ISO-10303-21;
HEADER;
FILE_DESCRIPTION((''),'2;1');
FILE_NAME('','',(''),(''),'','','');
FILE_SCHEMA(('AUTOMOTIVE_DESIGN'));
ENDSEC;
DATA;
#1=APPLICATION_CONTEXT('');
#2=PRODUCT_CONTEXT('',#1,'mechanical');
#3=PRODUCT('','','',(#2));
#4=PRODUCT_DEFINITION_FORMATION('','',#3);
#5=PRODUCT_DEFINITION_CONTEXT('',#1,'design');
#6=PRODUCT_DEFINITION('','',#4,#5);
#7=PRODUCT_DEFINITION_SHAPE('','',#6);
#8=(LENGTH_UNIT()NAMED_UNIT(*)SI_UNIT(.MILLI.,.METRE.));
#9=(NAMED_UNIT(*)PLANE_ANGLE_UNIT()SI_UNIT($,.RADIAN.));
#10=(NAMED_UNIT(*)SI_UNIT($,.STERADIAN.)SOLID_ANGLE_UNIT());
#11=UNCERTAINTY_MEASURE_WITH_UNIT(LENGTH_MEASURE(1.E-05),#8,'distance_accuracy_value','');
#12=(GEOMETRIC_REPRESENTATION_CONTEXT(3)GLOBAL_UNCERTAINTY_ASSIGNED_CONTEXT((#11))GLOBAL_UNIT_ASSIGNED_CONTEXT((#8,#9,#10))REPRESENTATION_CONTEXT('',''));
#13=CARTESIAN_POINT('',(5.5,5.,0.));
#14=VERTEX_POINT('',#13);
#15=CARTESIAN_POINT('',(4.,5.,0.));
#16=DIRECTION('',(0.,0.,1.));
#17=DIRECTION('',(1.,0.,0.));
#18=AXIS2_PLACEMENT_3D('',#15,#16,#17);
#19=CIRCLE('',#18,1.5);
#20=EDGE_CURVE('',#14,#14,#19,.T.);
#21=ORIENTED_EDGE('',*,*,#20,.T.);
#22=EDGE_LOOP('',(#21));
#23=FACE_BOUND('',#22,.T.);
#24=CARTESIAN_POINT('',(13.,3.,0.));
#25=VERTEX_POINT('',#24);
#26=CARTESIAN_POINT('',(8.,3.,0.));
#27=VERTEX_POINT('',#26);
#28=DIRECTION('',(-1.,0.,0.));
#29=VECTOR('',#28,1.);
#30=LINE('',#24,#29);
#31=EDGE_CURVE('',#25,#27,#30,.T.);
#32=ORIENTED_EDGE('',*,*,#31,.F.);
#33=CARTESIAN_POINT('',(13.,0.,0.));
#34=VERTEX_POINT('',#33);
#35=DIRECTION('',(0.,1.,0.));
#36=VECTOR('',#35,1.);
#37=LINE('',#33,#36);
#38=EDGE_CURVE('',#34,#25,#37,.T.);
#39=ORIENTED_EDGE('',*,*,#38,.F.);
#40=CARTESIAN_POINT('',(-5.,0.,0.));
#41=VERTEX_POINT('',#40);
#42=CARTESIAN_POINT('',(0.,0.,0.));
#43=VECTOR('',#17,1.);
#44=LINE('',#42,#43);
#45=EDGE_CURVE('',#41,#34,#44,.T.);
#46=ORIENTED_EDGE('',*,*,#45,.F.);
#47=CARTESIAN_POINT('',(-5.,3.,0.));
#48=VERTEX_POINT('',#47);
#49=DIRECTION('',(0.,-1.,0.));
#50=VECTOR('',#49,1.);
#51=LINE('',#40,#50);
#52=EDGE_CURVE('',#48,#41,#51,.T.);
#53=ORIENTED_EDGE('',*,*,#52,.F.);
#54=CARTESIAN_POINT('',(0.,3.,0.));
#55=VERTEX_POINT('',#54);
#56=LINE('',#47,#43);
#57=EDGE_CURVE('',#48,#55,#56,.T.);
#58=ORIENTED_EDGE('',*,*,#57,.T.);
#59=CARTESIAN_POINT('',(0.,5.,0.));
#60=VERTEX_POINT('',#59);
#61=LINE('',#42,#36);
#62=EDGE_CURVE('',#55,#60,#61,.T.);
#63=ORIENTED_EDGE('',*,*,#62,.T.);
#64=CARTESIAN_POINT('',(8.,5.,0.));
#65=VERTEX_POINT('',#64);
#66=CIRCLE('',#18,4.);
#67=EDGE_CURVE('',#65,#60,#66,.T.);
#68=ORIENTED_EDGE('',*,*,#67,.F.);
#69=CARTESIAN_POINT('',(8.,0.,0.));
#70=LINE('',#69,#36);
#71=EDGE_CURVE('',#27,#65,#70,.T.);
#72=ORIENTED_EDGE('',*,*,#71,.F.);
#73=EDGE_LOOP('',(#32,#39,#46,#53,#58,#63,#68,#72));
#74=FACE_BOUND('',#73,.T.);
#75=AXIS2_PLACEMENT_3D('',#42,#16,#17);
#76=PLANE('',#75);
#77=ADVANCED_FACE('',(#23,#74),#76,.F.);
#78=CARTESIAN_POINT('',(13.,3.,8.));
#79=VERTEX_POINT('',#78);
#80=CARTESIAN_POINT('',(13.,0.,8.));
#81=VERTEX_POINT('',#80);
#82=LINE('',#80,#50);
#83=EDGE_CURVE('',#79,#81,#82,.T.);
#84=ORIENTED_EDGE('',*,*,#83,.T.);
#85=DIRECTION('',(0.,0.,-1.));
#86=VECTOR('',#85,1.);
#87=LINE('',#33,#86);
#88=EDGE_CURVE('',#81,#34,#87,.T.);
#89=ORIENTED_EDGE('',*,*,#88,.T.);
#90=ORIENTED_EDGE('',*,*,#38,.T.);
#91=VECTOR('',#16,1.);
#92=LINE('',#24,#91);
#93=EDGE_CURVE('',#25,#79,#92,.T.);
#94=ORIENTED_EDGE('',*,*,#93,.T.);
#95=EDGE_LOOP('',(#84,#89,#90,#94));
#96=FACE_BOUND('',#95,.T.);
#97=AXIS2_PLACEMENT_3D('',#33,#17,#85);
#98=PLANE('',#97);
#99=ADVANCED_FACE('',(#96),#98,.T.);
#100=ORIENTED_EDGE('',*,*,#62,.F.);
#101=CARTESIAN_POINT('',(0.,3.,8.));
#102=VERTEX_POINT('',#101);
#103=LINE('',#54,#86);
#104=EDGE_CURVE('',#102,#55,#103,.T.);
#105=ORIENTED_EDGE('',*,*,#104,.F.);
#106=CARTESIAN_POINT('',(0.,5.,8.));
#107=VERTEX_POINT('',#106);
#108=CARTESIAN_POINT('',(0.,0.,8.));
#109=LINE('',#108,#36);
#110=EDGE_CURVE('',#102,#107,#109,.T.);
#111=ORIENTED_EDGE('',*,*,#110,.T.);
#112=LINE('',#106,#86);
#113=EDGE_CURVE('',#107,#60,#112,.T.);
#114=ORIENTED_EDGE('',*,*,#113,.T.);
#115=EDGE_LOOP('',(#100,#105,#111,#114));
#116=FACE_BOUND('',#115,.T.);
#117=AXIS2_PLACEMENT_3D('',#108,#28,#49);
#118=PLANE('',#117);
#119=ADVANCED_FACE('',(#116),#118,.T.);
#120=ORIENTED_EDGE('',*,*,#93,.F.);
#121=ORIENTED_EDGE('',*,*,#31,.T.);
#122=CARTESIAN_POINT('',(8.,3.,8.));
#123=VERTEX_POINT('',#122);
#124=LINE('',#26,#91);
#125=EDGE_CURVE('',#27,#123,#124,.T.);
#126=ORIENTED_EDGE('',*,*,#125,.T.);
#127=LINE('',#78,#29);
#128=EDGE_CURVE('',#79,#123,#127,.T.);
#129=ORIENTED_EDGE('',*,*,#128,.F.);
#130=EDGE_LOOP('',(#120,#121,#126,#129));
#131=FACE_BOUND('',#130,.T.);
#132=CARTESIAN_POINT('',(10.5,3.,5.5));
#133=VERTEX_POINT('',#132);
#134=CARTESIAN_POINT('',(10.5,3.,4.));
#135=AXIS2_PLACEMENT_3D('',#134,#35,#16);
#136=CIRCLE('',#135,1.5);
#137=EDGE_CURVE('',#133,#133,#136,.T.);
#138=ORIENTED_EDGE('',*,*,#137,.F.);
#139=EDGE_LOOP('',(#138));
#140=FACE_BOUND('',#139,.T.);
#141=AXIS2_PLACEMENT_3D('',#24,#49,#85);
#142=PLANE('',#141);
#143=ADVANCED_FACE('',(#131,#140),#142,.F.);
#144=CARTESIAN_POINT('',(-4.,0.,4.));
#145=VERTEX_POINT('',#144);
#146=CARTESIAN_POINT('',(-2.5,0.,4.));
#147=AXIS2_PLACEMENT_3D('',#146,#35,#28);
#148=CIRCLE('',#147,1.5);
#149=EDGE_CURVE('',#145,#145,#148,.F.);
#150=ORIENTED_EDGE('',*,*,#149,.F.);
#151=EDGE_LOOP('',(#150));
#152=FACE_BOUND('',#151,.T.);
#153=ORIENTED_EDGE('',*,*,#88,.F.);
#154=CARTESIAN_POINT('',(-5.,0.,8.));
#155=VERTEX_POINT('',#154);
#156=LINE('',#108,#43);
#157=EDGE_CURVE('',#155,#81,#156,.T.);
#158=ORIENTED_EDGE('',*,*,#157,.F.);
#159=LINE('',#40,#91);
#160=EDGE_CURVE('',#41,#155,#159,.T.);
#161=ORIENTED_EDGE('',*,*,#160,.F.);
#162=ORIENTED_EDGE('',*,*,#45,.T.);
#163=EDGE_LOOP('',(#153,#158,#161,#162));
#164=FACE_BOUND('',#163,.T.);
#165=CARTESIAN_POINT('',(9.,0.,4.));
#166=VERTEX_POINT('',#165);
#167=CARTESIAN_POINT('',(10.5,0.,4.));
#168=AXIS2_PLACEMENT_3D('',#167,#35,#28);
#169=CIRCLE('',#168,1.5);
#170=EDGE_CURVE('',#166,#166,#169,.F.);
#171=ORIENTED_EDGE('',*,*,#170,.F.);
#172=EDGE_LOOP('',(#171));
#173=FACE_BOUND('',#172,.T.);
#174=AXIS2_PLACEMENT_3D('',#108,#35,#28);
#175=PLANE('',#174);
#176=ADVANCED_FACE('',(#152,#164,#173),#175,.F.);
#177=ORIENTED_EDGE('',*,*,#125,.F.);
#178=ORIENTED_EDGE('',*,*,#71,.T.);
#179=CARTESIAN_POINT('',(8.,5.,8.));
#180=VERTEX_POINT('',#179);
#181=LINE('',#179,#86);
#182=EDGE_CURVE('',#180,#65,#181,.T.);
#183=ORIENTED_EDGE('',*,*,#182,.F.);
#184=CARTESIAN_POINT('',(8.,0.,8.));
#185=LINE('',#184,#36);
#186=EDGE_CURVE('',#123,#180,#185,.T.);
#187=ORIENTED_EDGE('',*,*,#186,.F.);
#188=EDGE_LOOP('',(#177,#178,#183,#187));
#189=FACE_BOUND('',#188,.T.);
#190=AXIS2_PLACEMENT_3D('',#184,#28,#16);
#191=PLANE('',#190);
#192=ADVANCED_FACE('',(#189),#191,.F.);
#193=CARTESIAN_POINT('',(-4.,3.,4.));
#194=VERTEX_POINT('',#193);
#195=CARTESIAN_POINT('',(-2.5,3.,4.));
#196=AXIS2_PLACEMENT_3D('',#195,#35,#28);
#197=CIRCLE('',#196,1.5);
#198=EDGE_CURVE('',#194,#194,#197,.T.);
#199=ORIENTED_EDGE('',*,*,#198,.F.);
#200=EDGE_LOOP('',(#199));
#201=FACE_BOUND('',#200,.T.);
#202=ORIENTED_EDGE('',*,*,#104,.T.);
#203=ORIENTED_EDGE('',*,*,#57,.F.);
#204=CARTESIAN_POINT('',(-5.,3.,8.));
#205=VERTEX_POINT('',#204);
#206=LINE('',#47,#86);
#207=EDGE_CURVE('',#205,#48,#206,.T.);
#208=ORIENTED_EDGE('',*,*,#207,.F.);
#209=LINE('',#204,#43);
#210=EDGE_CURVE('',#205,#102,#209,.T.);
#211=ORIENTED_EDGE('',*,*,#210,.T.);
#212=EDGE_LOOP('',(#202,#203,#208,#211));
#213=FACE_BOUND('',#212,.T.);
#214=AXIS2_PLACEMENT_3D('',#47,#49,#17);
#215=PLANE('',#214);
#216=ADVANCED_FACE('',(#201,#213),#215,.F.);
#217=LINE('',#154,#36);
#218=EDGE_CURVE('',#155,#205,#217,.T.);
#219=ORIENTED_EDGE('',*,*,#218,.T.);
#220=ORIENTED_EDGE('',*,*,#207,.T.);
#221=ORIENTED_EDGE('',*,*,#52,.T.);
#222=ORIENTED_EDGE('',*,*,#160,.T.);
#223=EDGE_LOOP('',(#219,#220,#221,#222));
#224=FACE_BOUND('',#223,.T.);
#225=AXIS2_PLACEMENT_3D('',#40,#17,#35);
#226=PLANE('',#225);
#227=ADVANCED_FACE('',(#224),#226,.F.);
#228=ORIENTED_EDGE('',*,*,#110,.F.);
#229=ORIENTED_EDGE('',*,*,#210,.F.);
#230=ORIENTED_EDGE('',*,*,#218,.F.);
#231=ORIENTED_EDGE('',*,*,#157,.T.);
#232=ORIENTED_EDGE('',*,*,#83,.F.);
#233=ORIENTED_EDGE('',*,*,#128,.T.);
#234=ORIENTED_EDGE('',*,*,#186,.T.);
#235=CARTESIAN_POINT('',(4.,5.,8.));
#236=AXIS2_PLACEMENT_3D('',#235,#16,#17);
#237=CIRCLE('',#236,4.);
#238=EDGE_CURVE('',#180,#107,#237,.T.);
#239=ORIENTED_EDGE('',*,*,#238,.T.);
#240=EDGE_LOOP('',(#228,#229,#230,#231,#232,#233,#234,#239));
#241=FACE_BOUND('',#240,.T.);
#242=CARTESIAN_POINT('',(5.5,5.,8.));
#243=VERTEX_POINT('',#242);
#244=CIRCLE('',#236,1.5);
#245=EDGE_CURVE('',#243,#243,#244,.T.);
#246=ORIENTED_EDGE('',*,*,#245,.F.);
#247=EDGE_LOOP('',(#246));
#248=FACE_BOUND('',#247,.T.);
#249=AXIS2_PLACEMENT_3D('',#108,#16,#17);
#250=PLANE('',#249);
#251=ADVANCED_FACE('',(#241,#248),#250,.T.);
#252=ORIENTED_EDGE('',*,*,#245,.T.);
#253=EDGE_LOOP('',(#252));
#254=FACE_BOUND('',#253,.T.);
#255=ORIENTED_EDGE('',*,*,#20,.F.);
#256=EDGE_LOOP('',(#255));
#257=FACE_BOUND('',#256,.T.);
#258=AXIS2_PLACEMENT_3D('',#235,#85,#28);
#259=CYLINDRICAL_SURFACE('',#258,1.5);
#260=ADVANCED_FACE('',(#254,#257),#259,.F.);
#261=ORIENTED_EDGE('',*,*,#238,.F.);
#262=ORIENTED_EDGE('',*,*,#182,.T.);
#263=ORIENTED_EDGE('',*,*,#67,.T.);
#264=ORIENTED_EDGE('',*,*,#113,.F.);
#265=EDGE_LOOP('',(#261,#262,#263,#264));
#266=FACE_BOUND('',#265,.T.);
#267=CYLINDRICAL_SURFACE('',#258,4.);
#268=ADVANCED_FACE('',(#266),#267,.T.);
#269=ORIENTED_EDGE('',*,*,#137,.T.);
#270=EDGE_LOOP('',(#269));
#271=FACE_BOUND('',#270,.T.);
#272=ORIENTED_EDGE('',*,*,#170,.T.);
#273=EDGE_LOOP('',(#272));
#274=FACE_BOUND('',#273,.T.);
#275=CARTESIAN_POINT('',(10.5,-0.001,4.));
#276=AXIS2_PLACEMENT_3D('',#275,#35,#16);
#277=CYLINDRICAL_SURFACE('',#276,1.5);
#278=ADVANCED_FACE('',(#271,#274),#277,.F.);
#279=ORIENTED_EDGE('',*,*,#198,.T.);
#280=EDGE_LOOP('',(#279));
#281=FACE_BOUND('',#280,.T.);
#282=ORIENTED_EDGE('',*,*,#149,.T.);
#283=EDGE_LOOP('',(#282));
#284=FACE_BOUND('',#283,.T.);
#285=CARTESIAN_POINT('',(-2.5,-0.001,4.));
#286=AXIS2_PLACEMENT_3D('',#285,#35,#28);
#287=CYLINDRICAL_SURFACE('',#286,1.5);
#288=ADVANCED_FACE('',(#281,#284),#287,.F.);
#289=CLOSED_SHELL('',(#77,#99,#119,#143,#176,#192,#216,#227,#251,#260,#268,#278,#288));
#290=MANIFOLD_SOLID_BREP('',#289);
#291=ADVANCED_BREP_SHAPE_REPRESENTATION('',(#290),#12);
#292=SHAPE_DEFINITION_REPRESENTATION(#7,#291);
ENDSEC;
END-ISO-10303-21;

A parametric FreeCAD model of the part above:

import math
import FreeCAD as App
import Part
import Sketcher
from FreeCAD import Vector
Q = App.Units.Quantity


def add_polygon(sketch, points):
    """Adds a closed chain of lines whose ends are joined by coincident constraints."""
    first, n = sketch.GeometryCount, len(points)
    for a, b in zip(points, points[1:] + points[:1]):
        sketch.addGeometry(Part.LineSegment(App.Vector(*a, 0), App.Vector(*b, 0)), False)
    for i in range(n):
        sketch.addConstraint(Sketcher.Constraint("Coincident", first + i, 2, first + (i + 1) % n, 1))

doc = App.newDocument("Part")
params = doc.addObject("Spreadsheet::Sheet", "Params")
for row, (alias, value) in enumerate([
    ("sketch1_diameter", "3 mm"),
    ("sketch1_radius", "4 mm"),
    ("sketch1_height", "5 mm"),
    ("pad1_length", "8 mm"),
    ("sketch2_width", "3 mm"),
    ("sketch2_height", "8 mm"),
    ("pad2_length", "5 mm"),
    ("sketch3_diameter", "3 mm"),
    ("sketch4_width", "3 mm"),
    ("sketch4_height", "8 mm"),
    ("pad3_length", "5 mm"),
    ("sketch5_diameter", "3 mm"),
], start=1):
    params.set(f"A{row}", alias)
    params.set(f"B{row}", "=" + value)
    params.setAlias(f"B{row}", alias)

body = doc.addObject("PartDesign::Body", "Body")

# Sketch on XY plane
sketch1 = body.newObject("Sketcher::SketchObject", "Sketch")
sketch1.AttachmentSupport = (doc.getObject("XY_Plane"), [""])
sketch1.MapMode = "FlatFace"
sketch1.addGeometry(Part.ArcOfCircle(Part.Circle(Vector(4, 5, 0), Vector(0, 0, 1), 4), math.radians(0), math.radians(180)), False)
sketch1.addGeometry(Part.LineSegment(Vector(0, 5, 0), Vector(0, 0, 0)), False)
sketch1.addGeometry(Part.LineSegment(Vector(0, 0, 0), Vector(8, 0, 0)), False)
sketch1.addGeometry(Part.LineSegment(Vector(8, 0, 0), Vector(8, 5, 0)), False)
sketch1.addGeometry(Part.Circle(Vector(4, 5, 0), Vector(0, 0, 1), 1.5), False)
sketch1.addConstraint(Sketcher.Constraint("Tangent", 0, 2, 1, 1))
sketch1.addConstraint(Sketcher.Constraint("Coincident", 1, 2, 2, 1))
sketch1.addConstraint(Sketcher.Constraint("Coincident", 2, 2, 3, 1))
sketch1.addConstraint(Sketcher.Constraint("Tangent", 3, 2, 0, 1))
sketch1.addConstraint(Sketcher.Constraint("Vertical", 1))
sketch1.addConstraint(Sketcher.Constraint("Horizontal", 2))
sketch1.addConstraint(Sketcher.Constraint("Vertical", 3))
sketch1.addConstraint(Sketcher.Constraint("Coincident", 1, 2, -1, 1))
sketch1.addConstraint(Sketcher.Constraint("Coincident", 4, 3, 0, 3))
sketch1.addConstraint(Sketcher.Constraint("Diameter", 4, Q("3 mm")))
sketch1.addConstraint(Sketcher.Constraint("Radius", 0, Q("4 mm")))
sketch1.addConstraint(Sketcher.Constraint("DistanceY", 1, 2, 1, 1, Q("5 mm")))
sketch1.setExpression("Constraints[9]", "Params.sketch1_diameter")
sketch1.setExpression("Constraints[10]", "Params.sketch1_radius")
sketch1.setExpression("Constraints[11]", "Params.sketch1_height")
pad1 = body.newObject("PartDesign::Pad", "Pad")
pad1.Profile = sketch1
pad1.setExpression("Length", "Params.pad1_length")

# Sketch on YZ plane
sketch2 = body.newObject("Sketcher::SketchObject", "Sketch001")
sketch2.AttachmentSupport = (doc.getObject("YZ_Plane"), [""])
sketch2.MapMode = "FlatFace"
sketch2.AttachmentOffset = App.Placement(Vector(0, 0, 8), App.Rotation())
add_polygon(sketch2, [(3, 8), (0, 8), (0, 0), (3, 0)])  # lines 0-3
sketch2.addConstraint(Sketcher.Constraint("Horizontal", 0))
sketch2.addConstraint(Sketcher.Constraint("Vertical", 1))
sketch2.addConstraint(Sketcher.Constraint("Horizontal", 2))
sketch2.addConstraint(Sketcher.Constraint("Vertical", 3))
sketch2.addConstraint(Sketcher.Constraint("Coincident", 1, 2, -1, 1))
sketch2.addConstraint(Sketcher.Constraint("DistanceX", 0, 2, 0, 1, Q("3 mm")))
sketch2.addConstraint(Sketcher.Constraint("DistanceY", 1, 2, 1, 1, Q("8 mm")))
sketch2.setExpression("Constraints[9]", "Params.sketch2_width")
sketch2.setExpression("Constraints[10]", "Params.sketch2_height")
pad2 = body.newObject("PartDesign::Pad", "Pad001")
pad2.Profile = sketch2
pad2.setExpression("Length", "Params.pad2_length")

# Sketch on XZ plane
sketch3 = body.newObject("Sketcher::SketchObject", "Sketch002")
sketch3.AttachmentSupport = (doc.getObject("XZ_Plane"), [""])
sketch3.MapMode = "FlatFace"
sketch3.AttachmentOffset = App.Placement(Vector(0, 0, -3), App.Rotation())
sketch3.addGeometry(Part.Circle(Vector(10.5, 4, 0), Vector(0, 0, 1), 1.5), False)
sketch3.addConstraint(Sketcher.Constraint("Diameter", 0, Q("3 mm")))
sketch3.addConstraint(Sketcher.Constraint("DistanceY", -1, 1, 0, 3, Q("4 mm")))
sketch3.addConstraint(Sketcher.Constraint("DistanceX", -1, 1, 0, 3, Q("10.5 mm")))
sketch3.setExpression("Constraints[0]", "Params.sketch3_diameter")
pocket1 = body.newObject("PartDesign::Pocket", "Pocket")
pocket1.Profile = sketch3
pocket1.Type = "UpToFirst"
pocket1.Reversed = True

# Sketch on YZ plane
sketch4 = body.newObject("Sketcher::SketchObject", "Sketch003")
sketch4.AttachmentSupport = (doc.getObject("YZ_Plane"), [""])
sketch4.MapMode = "FlatFace"
add_polygon(sketch4, [(3, 0), (0, 0), (0, 8), (3, 8)])  # lines 0-3
sketch4.addConstraint(Sketcher.Constraint("Horizontal", 0))
sketch4.addConstraint(Sketcher.Constraint("Vertical", 1))
sketch4.addConstraint(Sketcher.Constraint("Horizontal", 2))
sketch4.addConstraint(Sketcher.Constraint("Vertical", 3))
sketch4.addConstraint(Sketcher.Constraint("Coincident", 0, 2, -1, 1))
sketch4.addConstraint(Sketcher.Constraint("DistanceX", 0, 2, 0, 1, Q("3 mm")))
sketch4.addConstraint(Sketcher.Constraint("DistanceY", 1, 1, 1, 2, Q("8 mm")))
sketch4.setExpression("Constraints[9]", "Params.sketch4_width")
sketch4.setExpression("Constraints[10]", "Params.sketch4_height")
pad3 = body.newObject("PartDesign::Pad", "Pad002")
pad3.Profile = sketch4
pad3.setExpression("Length", "Params.pad3_length")
pad3.Reversed = True

# Sketch on XZ plane
sketch5 = body.newObject("Sketcher::SketchObject", "Sketch004")
sketch5.AttachmentSupport = (doc.getObject("XZ_Plane"), [""])
sketch5.MapMode = "FlatFace"
sketch5.AttachmentOffset = App.Placement(Vector(0, 0, -3), App.Rotation())
sketch5.addGeometry(Part.Circle(Vector(-2.5, 4, 0), Vector(0, 0, 1), 1.5), False)
sketch5.addConstraint(Sketcher.Constraint("Diameter", 0, Q("3 mm")))
sketch5.addConstraint(Sketcher.Constraint("DistanceY", -1, 1, 0, 3, Q("4 mm")))
sketch5.addConstraint(Sketcher.Constraint("DistanceX", 0, 3, -1, 1, Q("2.5 mm")))
sketch5.setExpression("Constraints[0]", "Params.sketch5_diameter")
pocket2 = body.newObject("PartDesign::Pocket", "Pocket001")
pocket2.Profile = sketch5
pocket2.Type = "UpToFirst"
pocket2.Reversed = True

doc.recompute()
